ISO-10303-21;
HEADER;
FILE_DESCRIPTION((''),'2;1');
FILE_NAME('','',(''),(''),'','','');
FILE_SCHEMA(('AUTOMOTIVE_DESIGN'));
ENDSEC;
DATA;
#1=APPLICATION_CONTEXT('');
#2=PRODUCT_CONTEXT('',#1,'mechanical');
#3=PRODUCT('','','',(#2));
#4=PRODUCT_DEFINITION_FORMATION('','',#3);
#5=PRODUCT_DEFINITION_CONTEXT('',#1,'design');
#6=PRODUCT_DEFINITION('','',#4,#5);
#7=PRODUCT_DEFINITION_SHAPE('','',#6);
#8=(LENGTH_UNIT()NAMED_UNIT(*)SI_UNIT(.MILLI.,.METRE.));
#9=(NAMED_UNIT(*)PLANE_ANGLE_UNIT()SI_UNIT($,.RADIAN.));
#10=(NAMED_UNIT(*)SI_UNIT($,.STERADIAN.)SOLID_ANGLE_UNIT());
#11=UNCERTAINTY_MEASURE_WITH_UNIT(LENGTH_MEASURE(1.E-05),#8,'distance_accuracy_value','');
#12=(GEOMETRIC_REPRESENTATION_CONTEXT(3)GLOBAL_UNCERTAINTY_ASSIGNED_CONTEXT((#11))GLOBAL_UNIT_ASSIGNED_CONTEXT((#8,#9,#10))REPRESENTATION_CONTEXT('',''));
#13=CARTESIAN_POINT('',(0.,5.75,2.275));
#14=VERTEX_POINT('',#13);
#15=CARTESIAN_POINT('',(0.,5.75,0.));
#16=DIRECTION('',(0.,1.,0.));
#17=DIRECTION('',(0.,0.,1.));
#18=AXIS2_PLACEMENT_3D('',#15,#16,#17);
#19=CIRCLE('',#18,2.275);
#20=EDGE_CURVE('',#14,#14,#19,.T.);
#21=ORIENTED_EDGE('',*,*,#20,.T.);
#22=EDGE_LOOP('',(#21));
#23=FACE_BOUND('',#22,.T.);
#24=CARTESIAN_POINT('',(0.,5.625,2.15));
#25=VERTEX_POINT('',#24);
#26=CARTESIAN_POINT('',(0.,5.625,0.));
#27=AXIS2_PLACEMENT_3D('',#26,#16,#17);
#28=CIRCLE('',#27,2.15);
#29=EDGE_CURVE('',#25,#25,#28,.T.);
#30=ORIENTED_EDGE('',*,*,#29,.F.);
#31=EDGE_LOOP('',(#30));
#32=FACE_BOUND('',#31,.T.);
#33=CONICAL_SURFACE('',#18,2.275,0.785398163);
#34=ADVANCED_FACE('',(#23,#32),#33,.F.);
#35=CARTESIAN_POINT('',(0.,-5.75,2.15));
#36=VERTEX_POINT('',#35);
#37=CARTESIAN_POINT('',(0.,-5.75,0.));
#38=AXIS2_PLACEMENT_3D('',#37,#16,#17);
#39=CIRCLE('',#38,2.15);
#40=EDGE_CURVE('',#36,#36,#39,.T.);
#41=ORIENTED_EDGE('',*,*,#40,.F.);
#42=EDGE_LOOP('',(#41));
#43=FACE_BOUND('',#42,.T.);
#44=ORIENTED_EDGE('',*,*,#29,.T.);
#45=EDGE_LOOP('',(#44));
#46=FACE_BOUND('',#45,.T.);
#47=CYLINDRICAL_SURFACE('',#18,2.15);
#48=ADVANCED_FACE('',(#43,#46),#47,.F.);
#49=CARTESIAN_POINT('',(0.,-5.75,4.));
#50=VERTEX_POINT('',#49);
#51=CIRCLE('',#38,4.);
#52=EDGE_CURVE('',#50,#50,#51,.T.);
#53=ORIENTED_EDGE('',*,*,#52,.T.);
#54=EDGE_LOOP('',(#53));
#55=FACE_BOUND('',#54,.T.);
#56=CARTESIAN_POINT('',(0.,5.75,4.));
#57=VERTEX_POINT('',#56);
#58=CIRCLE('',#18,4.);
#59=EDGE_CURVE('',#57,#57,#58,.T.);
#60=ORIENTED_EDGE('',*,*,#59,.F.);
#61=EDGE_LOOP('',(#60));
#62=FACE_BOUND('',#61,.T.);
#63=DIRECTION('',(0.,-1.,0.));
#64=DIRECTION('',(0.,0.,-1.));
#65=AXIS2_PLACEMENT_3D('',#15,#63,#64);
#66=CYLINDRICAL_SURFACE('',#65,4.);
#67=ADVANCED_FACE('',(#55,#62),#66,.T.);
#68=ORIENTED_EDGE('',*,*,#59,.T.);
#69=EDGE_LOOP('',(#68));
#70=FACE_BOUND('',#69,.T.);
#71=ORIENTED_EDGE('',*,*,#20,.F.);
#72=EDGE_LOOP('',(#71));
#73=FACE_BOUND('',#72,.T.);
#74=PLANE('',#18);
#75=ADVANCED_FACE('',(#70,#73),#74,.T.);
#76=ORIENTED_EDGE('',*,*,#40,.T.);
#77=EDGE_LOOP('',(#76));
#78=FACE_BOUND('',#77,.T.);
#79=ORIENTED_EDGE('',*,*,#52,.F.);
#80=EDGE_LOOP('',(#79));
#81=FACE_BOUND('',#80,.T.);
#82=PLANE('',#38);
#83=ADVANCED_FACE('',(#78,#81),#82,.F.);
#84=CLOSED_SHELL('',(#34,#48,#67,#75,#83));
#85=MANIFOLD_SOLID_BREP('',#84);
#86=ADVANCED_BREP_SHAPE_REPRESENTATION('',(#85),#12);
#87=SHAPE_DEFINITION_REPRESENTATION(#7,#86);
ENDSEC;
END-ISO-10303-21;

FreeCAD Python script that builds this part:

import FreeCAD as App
import Part
import Sketcher
from FreeCAD import Vector

doc = App.newDocument("Part")
body = doc.addObject("PartDesign::Body", "Body")

# Sketch on XZ plane
sketch1 = body.newObject("Sketcher::SketchObject", "Sketch")
sketch1.AttachmentSupport = (doc.getObject("XZ_Plane"), [""])
sketch1.MapMode = "FlatFace"
sketch1.addGeometry(Part.Circle(Vector(0, 0, 0), Vector(0, 0, 1), 4), False)
sketch1.addConstraint([
    Sketcher.Constraint("Coincident", 0, 3, -1, 1),
    Sketcher.Constraint("Diameter", 0, 8.0),
])
pad1 = body.newObject("PartDesign::Pad", "Pad")
pad1.Profile = sketch1
pad1.Length = 11.5
pad1.Midplane = True

# Sketch on XZ plane
sketch2 = body.newObject("Sketcher::SketchObject", "Sketch001")
sketch2.AttachmentSupport = (doc.getObject("XZ_Plane"), [""])
sketch2.MapMode = "FlatFace"
sketch2.AttachmentOffset = App.Placement(Vector(0, 0, -5.75), App.Rotation())
sketch2.addGeometry(Part.Circle(Vector(0, 0, 0), Vector(0, 0, 1), 2.15), False)
sketch2.addConstraint([
    Sketcher.Constraint("Coincident", 0, 3, -1, 1),
    Sketcher.Constraint("Diameter", 0, 4.3),
])
doc.recompute()
hole = body.newObject("PartDesign::Hole", "Hole")
hole.Profile = sketch2
hole.ThreadType = "None"
hole.Diameter = 4.3
hole.DepthType = "ThroughAll"
hole.HoleCutType = "Countersink"
hole.HoleCutDiameter = 4.55
hole.HoleCutCountersinkAngle = 90
hole.Reversed = True

doc.recompute()
